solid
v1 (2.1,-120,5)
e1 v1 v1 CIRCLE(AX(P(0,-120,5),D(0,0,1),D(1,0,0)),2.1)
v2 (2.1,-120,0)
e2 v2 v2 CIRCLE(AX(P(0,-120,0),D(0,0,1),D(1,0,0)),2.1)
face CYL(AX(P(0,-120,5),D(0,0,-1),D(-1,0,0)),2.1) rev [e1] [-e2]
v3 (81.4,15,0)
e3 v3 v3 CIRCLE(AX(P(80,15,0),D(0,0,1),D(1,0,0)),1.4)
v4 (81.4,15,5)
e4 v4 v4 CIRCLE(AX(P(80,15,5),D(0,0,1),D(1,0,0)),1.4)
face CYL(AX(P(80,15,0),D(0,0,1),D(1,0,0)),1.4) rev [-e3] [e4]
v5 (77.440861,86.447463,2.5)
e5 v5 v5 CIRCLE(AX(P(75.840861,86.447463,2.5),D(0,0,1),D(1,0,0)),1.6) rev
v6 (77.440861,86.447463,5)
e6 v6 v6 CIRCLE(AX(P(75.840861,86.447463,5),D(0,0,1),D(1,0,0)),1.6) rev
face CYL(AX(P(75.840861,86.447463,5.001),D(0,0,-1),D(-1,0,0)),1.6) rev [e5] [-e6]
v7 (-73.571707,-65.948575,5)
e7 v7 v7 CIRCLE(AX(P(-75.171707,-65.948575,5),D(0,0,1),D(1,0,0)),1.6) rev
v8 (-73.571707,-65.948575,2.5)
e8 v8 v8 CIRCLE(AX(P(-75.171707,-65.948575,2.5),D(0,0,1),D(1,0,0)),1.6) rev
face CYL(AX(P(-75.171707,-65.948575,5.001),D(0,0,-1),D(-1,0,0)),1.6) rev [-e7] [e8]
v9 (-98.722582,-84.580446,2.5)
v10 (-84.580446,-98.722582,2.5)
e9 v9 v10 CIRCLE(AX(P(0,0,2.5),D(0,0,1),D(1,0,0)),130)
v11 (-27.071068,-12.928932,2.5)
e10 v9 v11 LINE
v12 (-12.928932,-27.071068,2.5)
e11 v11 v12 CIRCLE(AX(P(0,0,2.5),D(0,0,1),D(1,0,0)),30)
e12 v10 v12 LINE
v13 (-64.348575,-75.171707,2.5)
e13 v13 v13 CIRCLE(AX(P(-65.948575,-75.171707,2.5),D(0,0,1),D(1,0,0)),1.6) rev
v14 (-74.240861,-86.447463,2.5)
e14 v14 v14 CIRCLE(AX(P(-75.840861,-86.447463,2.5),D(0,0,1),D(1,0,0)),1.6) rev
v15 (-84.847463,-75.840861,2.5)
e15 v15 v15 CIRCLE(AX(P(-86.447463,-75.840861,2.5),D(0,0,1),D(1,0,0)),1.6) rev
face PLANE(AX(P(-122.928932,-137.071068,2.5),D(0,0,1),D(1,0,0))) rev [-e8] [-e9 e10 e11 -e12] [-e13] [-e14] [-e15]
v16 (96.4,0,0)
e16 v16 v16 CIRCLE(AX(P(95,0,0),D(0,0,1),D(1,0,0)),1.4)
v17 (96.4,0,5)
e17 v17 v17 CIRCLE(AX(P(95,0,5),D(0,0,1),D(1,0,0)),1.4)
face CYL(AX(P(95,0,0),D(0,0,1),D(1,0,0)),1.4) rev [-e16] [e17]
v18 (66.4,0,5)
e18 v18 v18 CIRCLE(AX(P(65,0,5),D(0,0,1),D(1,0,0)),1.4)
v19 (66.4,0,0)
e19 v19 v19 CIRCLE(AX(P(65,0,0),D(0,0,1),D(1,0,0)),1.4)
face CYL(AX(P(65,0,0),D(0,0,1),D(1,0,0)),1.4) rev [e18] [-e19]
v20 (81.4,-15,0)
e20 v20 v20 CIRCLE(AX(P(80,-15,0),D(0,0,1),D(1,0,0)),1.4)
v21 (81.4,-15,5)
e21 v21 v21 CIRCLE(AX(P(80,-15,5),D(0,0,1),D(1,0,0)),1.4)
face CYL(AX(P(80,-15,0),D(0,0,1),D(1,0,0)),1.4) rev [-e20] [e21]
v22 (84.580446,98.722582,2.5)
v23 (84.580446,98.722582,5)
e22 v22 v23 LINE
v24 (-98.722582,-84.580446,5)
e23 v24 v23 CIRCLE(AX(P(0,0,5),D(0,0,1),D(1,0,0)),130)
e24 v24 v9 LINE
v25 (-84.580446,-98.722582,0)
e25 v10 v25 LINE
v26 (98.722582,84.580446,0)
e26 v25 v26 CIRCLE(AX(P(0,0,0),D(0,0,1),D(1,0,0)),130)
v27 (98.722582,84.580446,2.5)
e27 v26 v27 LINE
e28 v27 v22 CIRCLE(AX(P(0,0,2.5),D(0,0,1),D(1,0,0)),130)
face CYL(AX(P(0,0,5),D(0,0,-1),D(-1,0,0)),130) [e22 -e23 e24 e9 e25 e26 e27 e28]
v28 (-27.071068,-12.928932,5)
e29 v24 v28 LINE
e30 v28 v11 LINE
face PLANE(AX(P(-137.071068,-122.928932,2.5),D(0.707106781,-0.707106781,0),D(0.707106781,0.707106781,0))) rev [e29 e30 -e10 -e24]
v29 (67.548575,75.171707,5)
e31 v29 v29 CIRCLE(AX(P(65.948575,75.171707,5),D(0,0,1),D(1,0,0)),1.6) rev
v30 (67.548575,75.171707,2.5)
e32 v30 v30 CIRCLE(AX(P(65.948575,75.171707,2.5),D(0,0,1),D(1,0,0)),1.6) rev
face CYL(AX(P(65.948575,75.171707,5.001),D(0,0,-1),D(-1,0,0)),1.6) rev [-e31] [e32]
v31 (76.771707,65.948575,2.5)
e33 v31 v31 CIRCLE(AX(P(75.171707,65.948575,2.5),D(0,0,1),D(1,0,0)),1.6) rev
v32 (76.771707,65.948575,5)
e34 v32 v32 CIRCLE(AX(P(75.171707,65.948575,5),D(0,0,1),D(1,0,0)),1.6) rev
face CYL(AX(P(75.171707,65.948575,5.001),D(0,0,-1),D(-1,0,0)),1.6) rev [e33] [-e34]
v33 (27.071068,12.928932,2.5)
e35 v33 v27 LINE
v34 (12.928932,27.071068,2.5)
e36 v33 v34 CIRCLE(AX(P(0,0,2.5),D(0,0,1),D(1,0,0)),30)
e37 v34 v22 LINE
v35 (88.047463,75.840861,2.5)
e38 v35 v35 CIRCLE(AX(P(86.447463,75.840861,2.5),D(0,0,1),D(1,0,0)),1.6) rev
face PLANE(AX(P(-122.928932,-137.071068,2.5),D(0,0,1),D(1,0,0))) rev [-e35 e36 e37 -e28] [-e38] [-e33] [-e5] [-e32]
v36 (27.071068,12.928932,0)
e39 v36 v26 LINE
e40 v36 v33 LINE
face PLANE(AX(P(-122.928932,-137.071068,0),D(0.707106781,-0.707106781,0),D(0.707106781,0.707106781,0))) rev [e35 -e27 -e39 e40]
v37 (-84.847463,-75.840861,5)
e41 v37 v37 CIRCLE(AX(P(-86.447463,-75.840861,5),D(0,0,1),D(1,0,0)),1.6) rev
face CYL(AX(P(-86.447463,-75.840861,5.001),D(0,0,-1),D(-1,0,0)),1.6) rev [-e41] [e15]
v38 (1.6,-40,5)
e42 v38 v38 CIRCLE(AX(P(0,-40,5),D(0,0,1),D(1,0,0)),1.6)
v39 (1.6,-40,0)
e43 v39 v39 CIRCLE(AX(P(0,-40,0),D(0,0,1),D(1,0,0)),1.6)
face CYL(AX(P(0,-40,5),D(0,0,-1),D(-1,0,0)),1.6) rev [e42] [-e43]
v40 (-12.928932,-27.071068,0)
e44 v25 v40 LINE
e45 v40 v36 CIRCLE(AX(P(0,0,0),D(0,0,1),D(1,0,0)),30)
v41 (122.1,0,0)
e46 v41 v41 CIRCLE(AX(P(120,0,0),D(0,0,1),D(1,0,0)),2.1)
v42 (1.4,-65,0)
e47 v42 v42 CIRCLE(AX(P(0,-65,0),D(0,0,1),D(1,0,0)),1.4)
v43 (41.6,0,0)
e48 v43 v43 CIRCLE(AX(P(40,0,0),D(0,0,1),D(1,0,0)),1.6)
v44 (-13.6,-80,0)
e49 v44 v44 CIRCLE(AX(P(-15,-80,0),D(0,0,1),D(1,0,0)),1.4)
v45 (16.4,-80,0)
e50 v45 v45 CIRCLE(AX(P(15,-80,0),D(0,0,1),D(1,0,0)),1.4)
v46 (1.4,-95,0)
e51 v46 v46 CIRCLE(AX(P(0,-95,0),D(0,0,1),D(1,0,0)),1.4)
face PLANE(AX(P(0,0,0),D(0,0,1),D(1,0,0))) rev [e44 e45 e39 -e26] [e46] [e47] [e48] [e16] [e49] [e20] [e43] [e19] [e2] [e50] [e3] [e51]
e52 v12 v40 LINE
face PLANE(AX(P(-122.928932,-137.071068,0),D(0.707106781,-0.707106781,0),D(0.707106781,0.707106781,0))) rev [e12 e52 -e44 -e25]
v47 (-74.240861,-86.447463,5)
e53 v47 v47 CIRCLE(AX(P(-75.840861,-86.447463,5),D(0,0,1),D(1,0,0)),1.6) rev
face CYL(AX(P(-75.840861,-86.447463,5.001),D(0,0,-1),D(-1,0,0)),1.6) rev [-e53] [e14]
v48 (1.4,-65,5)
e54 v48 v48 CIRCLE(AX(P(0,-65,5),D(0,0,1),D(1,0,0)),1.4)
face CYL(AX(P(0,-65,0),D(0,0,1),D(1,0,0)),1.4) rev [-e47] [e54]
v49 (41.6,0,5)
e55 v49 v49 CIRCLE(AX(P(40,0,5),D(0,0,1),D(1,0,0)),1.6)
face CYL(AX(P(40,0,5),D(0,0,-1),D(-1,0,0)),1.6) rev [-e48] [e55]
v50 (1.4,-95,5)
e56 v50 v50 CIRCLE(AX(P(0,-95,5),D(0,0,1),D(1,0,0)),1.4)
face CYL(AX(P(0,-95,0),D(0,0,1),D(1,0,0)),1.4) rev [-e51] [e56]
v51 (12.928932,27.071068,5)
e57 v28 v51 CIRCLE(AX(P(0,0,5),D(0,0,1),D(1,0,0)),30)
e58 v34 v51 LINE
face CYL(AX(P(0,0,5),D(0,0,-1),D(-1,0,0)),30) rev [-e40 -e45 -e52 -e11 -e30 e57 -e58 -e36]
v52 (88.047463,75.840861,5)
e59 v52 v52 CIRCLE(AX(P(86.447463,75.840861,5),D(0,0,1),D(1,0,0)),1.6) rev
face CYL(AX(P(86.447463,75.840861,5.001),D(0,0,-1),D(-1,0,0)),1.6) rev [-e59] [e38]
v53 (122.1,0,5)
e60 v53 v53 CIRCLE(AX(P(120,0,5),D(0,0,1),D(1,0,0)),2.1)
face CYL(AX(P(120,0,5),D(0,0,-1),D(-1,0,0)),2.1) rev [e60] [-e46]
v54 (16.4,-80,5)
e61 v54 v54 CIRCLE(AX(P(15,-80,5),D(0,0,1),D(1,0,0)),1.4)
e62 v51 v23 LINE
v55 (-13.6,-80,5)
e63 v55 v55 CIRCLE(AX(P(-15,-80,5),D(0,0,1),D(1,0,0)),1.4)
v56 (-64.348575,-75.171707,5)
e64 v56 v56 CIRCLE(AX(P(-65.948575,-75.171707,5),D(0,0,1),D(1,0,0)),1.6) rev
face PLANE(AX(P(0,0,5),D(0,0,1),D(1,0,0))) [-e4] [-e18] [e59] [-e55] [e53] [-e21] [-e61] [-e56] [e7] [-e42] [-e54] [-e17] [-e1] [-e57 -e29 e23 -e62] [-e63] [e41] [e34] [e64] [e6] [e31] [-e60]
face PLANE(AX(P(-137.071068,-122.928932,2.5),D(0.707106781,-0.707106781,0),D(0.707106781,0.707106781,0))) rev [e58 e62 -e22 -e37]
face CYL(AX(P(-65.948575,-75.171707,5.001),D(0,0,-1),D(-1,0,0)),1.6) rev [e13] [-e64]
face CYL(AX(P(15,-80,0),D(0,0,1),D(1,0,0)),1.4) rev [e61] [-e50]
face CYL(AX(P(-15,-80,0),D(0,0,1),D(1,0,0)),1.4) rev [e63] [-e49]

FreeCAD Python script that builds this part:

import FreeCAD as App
import Part
import Sketcher


def add_polygon(sketch, points):
    """Adds a closed chain of lines whose ends are joined by coincident constraints."""
    first, n = sketch.GeometryCount, len(points)
    for a, b in zip(points, points[1:] + points[:1]):
        sketch.addGeometry(Part.LineSegment(App.Vector(*a, 0), App.Vector(*b, 0)), False)
    for i in range(n):
        sketch.addConstraint(Sketcher.Constraint("Coincident", first + i, 2, first + (i + 1) % n, 1))

doc = App.newDocument("Part")
body = doc.addObject("PartDesign::Body", "Body")

# Sketch on XY plane
sketch1 = doc.addObject("Sketcher::SketchObject", "Sketch")
body.addObject(sketch1)
sketch1.AttachmentSupport = (doc.XY_Plane, [""])
sketch1.MapMode = "FlatFace"
sketch1.addGeometry([
    Part.Circle(App.Vector(0, 0, 0), App.Vector(0, 0, 1), 130),  # 0
    Part.Circle(App.Vector(0, -120, 0), App.Vector(0, 0, 1), 2.1),  # 1
    Part.Circle(App.Vector(0, -40, 0), App.Vector(0, 0, 1), 1.6),  # 2
    Part.Circle(App.Vector(-120, 0, 0), App.Vector(0, 0, 1), 2.1),  # 3
    Part.Circle(App.Vector(-40, 0, 0), App.Vector(0, 0, 1), 1.6),  # 4
    Part.Circle(App.Vector(0, 0, 0), App.Vector(0, 0, 1), 30),  # 5
    Part.Circle(App.Vector(40, 0, 0), App.Vector(0, 0, 1), 1.6),  # 6
    Part.Circle(App.Vector(0, 40, 0), App.Vector(0, 0, 1), 1.6),  # 7
    Part.Circle(App.Vector(120, 0, 0), App.Vector(0, 0, 1), 2.1),  # 8
    Part.Circle(App.Vector(0, 120, 0), App.Vector(0, 0, 1), 2.1),  # 9
], False)
sketch1.addConstraint([
    Sketcher.Constraint("Coincident", 0, 3, -1, 1),
    Sketcher.Constraint("Coincident", 5, 3, -1, 1),
    Sketcher.Constraint("Equal", 1, 3),
    Sketcher.Constraint("Equal", 2, 4),
    Sketcher.Constraint("Equal", 4, 6),
    Sketcher.Constraint("Equal", 6, 7),
    Sketcher.Constraint("Equal", 3, 8),
    Sketcher.Constraint("Equal", 8, 9),
    Sketcher.Constraint("Symmetric", 4, 3, 6, 3, -1, 1),
    Sketcher.Constraint("Symmetric", 2, 3, 7, 3, -1, 1),
    Sketcher.Constraint("Symmetric", 3, 3, 8, 3, -1, 1),
    Sketcher.Constraint("Symmetric", 1, 3, 9, 3, -1, 1),
    Sketcher.Constraint("PointOnObject", 1, 3, -2),
    Sketcher.Constraint("PointOnObject", 2, 3, -2),
    Sketcher.Constraint("PointOnObject", 3, 3, -1),
    Sketcher.Constraint("PointOnObject", 4, 3, -1),
    Sketcher.Constraint("Diameter", 0, 260.0),
    Sketcher.Constraint("Diameter", 5, 60.0),
    Sketcher.Constraint("Diameter", 1, 4.2),
    Sketcher.Constraint("Diameter", 2, 3.2),
    Sketcher.Constraint("DistanceY", 1, 3, -1, 1, 120.0),
    Sketcher.Constraint("DistanceY", 2, 3, -1, 1, 40.0),
    Sketcher.Constraint("DistanceX", 3, 3, -1, 1, 120.0),
    Sketcher.Constraint("DistanceX", 4, 3, -1, 1, 40.0),
])
pad1 = doc.addObject("PartDesign::Pad", "Pad")
body.addObject(pad1)
pad1.Profile = sketch1
pad1.Length = 5

# Sketch on XY plane
sketch2 = doc.addObject("Sketcher::SketchObject", "Sketch001")
body.addObject(sketch2)
sketch2.AttachmentSupport = (doc.XY_Plane, [""])
sketch2.MapMode = "FlatFace"
sketch2.AttachmentOffset = App.Placement(App.Vector(0, 0, 5), App.Rotation())
sketch2.addGeometry([
    Part.Circle(App.Vector(0, 95, 0), App.Vector(0, 0, 1), 1.4),  # 0
    Part.Circle(App.Vector(15, 80, 0), App.Vector(0, 0, 1), 1.4),  # 1
    Part.Circle(App.Vector(0, 65, 0), App.Vector(0, 0, 1), 1.4),  # 2
    Part.Circle(App.Vector(-15, 80, 0), App.Vector(0, 0, 1), 1.4),  # 3
    Part.Circle(App.Vector(95, 0, 0), App.Vector(0, 0, 1), 1.4),  # 4
    Part.Circle(App.Vector(80, -15, 0), App.Vector(0, 0, 1), 1.4),  # 5
    Part.Circle(App.Vector(65, 0, 0), App.Vector(0, 0, 1), 1.4),  # 6
    Part.Circle(App.Vector(80, 15, 0), App.Vector(0, 0, 1), 1.4),  # 7
    Part.Circle(App.Vector(0, -95, 0), App.Vector(0, 0, 1), 1.4),  # 8
    Part.Circle(App.Vector(-15, -80, 0), App.Vector(0, 0, 1), 1.4),  # 9
    Part.Circle(App.Vector(0, -65, 0), App.Vector(0, 0, 1), 1.4),  # 10
    Part.Circle(App.Vector(15, -80, 0), App.Vector(0, 0, 1), 1.4),  # 11
    Part.Circle(App.Vector(-95, 0, 0), App.Vector(0, 0, 1), 1.4),  # 12
    Part.Circle(App.Vector(-80, 15, 0), App.Vector(0, 0, 1), 1.4),  # 13
    Part.Circle(App.Vector(-65, 0, 0), App.Vector(0, 0, 1), 1.4),  # 14
    Part.Circle(App.Vector(-80, -15, 0), App.Vector(0, 0, 1), 1.4),  # 15
], False)
sketch2.addConstraint([
    Sketcher.Constraint("Equal", 0, 1),
    Sketcher.Constraint("Equal", 1, 2),
    Sketcher.Constraint("Equal", 2, 3),
    Sketcher.Constraint("Equal", 3, 4),
    Sketcher.Constraint("Equal", 4, 5),
    Sketcher.Constraint("Equal", 5, 6),
    Sketcher.Constraint("Equal", 6, 7),
    Sketcher.Constraint("Equal", 7, 8),
    Sketcher.Constraint("Equal", 8, 9),
    Sketcher.Constraint("Equal", 9, 10),
    Sketcher.Constraint("Equal", 10, 11),
    Sketcher.Constraint("Equal", 11, 12),
    Sketcher.Constraint("Equal", 12, 13),
    Sketcher.Constraint("Equal", 13, 14),
    Sketcher.Constraint("Equal", 14, 15),
    Sketcher.Constraint("Symmetric", 0, 3, 8, 3, -1, 1),
    Sketcher.Constraint("Symmetric", 1, 3, 9, 3, -1, 1),
    Sketcher.Constraint("Symmetric", 2, 3, 10, 3, -1, 1),
    Sketcher.Constraint("Symmetric", 3, 3, 11, 3, -1, 1),
    Sketcher.Constraint("Symmetric", 4, 3, 12, 3, -1, 1),
    Sketcher.Constraint("Symmetric", 5, 3, 13, 3, -1, 1),
    Sketcher.Constraint("Symmetric", 6, 3, 14, 3, -1, 1),
    Sketcher.Constraint("Symmetric", 7, 3, 15, 3, -1, 1),
    Sketcher.Constraint("Symmetric", 1, 3, 3, 3, -2),
    Sketcher.Constraint("Symmetric", 7, 3, 13, 3, -2),
    Sketcher.Constraint("PointOnObject", 0, 3, -2),
    Sketcher.Constraint("PointOnObject", 2, 3, -2),
    Sketcher.Constraint("PointOnObject", 4, 3, -1),
    Sketcher.Constraint("PointOnObject", 6, 3, -1),
    Sketcher.Constraint("Diameter", 0, 2.8),
    Sketcher.Constraint("DistanceY", -1, 1, 0, 3, 95.0),
    Sketcher.Constraint("DistanceX", -1, 1, 1, 3, 15.0),
    Sketcher.Constraint("DistanceY", -1, 1, 1, 3, 80.0),
    Sketcher.Constraint("DistanceY", -1, 1, 2, 3, 65.0),
    Sketcher.Constraint("DistanceX", -1, 1, 4, 3, 95.0),
    Sketcher.Constraint("DistanceX", -1, 1, 5, 3, 80.0),
    Sketcher.Constraint("DistanceY", 5, 3, -1, 1, 15.0),
    Sketcher.Constraint("DistanceX", -1, 1, 6, 3, 65.0),
])
pocket1 = doc.addObject("PartDesign::Pocket", "Pocket")
body.addObject(pocket1)
pocket1.Profile = sketch2
pocket1.Type = "ThroughAll"
pocket1.Midplane = True

# Sketch on XY plane
sketch3 = doc.addObject("Sketcher::SketchObject", "Sketch002")
body.addObject(sketch3)
sketch3.AttachmentSupport = (doc.XY_Plane, [""])
sketch3.MapMode = "FlatFace"
sketch3.addGeometry(Part.Circle(App.Vector(75.8, 86.4, 0), App.Vector(0, 0, 1), 1.6), False)
sketch3.addConstraint([
    Sketcher.Constraint("Diameter", 0, 3.2),
    Sketcher.Constraint("DistanceX", -1, 1, 0, 3, 75.840861),
    Sketcher.Constraint("DistanceY", -1, 1, 0, 3, 86.447463),
])
pocket2 = doc.addObject("PartDesign::Pocket", "Pocket001")
body.addObject(pocket2)
pocket2.Profile = sketch3
pocket2.Type = "UpToFirst"
pocket2.Reversed = True

# Sketch on XY plane
sketch4 = doc.addObject("Sketcher::SketchObject", "Sketch003")
body.addObject(sketch4)
sketch4.AttachmentSupport = (doc.XY_Plane, [""])
sketch4.MapMode = "FlatFace"
sketch4.addGeometry(Part.Circle(App.Vector(86.4, 75.8, 0), App.Vector(0, 0, 1), 1.6), False)
sketch4.addConstraint([
    Sketcher.Constraint("Diameter", 0, 3.2),
    Sketcher.Constraint("DistanceY", -1, 1, 0, 3, 75.840861),
    Sketcher.Constraint("DistanceX", -1, 1, 0, 3, 86.447463),
])
pocket3 = doc.addObject("PartDesign::Pocket", "Pocket002")
body.addObject(pocket3)
pocket3.Profile = sketch4
pocket3.Type = "UpToFirst"
pocket3.Reversed = True

# Sketch on XY plane
sketch5 = doc.addObject("Sketcher::SketchObject", "Sketch004")
body.addObject(sketch5)
sketch5.AttachmentSupport = (doc.XY_Plane, [""])
sketch5.MapMode = "FlatFace"
sketch5.addGeometry(Part.Circle(App.Vector(65.9, 75.2, 0), App.Vector(0, 0, 1), 1.6), False)
sketch5.addConstraint([
    Sketcher.Constraint("Diameter", 0, 3.2),
    Sketcher.Constraint("DistanceX", -1, 1, 0, 3, 65.948575),
    Sketcher.Constraint("DistanceY", -1, 1, 0, 3, 75.171707),
])
pocket4 = doc.addObject("PartDesign::Pocket", "Pocket003")
body.addObject(pocket4)
pocket4.Profile = sketch5
pocket4.Type = "UpToFirst"
pocket4.Reversed = True

# Sketch on XY plane
sketch6 = doc.addObject("Sketcher::SketchObject", "Sketch005")
body.addObject(sketch6)
sketch6.AttachmentSupport = (doc.XY_Plane, [""])
sketch6.MapMode = "FlatFace"
sketch6.addGeometry(Part.Circle(App.Vector(75.2, 65.9, 0), App.Vector(0, 0, 1), 1.6), False)
sketch6.addConstraint([
    Sketcher.Constraint("Diameter", 0, 3.2),
    Sketcher.Constraint("DistanceX", -1, 1, 0, 3, 75.171707),
    Sketcher.Constraint("DistanceY", -1, 1, 0, 3, 65.948575),
])
pocket5 = doc.addObject("PartDesign::Pocket", "Pocket004")
body.addObject(pocket5)
pocket5.Profile = sketch6
pocket5.Type = "UpToFirst"
pocket5.Reversed = True

# Sketch on XY plane
sketch7 = doc.addObject("Sketcher::SketchObject", "Sketch006")
body.addObject(sketch7)
sketch7.AttachmentSupport = (doc.XY_Plane, [""])
sketch7.MapMode = "FlatFace"
sketch7.addGeometry(Part.Circle(App.Vector(-65.9, -75.2, 0), App.Vector(0, 0, 1), 1.6), False)
sketch7.addConstraint([
    Sketcher.Constraint("Diameter", 0, 3.2),
    Sketcher.Constraint("DistanceX", 0, 3, -1, 1, 65.948575),
    Sketcher.Constraint("DistanceY", 0, 3, -1, 1, 75.171707),
])
pocket6 = doc.addObject("PartDesign::Pocket", "Pocket005")
body.addObject(pocket6)
pocket6.Profile = sketch7
pocket6.Type = "UpToFirst"
pocket6.Reversed = True

# Sketch on XY plane
sketch8 = doc.addObject("Sketcher::SketchObject", "Sketch007")
body.addObject(sketch8)
sketch8.AttachmentSupport = (doc.XY_Plane, [""])
sketch8.MapMode = "FlatFace"
sketch8.addGeometry(Part.Circle(App.Vector(-75.2, -65.9, 0), App.Vector(0, 0, 1), 1.6), False)
sketch8.addConstraint([
    Sketcher.Constraint("Diameter", 0, 3.2),
    Sketcher.Constraint("DistanceX", 0, 3, -1, 1, 75.171707),
    Sketcher.Constraint("DistanceY", 0, 3, -1, 1, 65.948575),
])
pocket7 = doc.addObject("PartDesign::Pocket", "Pocket006")
body.addObject(pocket7)
pocket7.Profile = sketch8
pocket7.Type = "UpToFirst"
pocket7.Reversed = True

# Sketch on XY plane
sketch9 = doc.addObject("Sketcher::SketchObject", "Sketch008")
body.addObject(sketch9)
sketch9.AttachmentSupport = (doc.XY_Plane, [""])
sketch9.MapMode = "FlatFace"
sketch9.addGeometry(Part.Circle(App.Vector(-75.8, -86.4, 0), App.Vector(0, 0, 1), 1.6), False)
sketch9.addConstraint([
    Sketcher.Constraint("Diameter", 0, 3.2),
    Sketcher.Constraint("DistanceX", 0, 3, -1, 1, 75.840861),
    Sketcher.Constraint("DistanceY", 0, 3, -1, 1, 86.447463),
])
pocket8 = doc.addObject("PartDesign::Pocket", "Pocket007")
body.addObject(pocket8)
pocket8.Profile = sketch9
pocket8.Type = "UpToFirst"
pocket8.Reversed = True

# Sketch on XY plane
sketch10 = doc.addObject("Sketcher::SketchObject", "Sketch009")
body.addObject(sketch10)
sketch10.AttachmentSupport = (doc.XY_Plane, [""])
sketch10.MapMode = "FlatFace"
sketch10.addGeometry(Part.Circle(App.Vector(-86.4, -75.8, 0), App.Vector(0, 0, 1), 1.6), False)
sketch10.addConstraint([
    Sketcher.Constraint("Diameter", 0, 3.2),
    Sketcher.Constraint("DistanceY", 0, 3, -1, 1, 75.840861),
    Sketcher.Constraint("DistanceX", 0, 3, -1, 1, 86.447463),
])
pocket9 = doc.addObject("PartDesign::Pocket", "Pocket008")
body.addObject(pocket9)
pocket9.Profile = sketch10
pocket9.Type = "UpToFirst"
pocket9.Reversed = True

# Sketch on an angled plane
sketch11 = doc.addObject("Sketcher::SketchObject", "Sketch010")
body.addObject(sketch11)
sketch11.Placement = App.Placement(App.Vector(91.923882, 91.923882, 0), App.Rotation(App.Vector(0, 0, -1), App.Vector(-0.707106781, 0.707106781, 0), App.Vector(0.707106781, 0.707106781, 0), "ZXY"))
add_polygon(sketch11, [(-2.5, -10), (0, -10), (0, 130), (-5, 130), (-5, 10), (-2.5, 10)])  # lines 0-5
sketch11.addConstraint([
    Sketcher.Constraint("Horizontal", 0),
    Sketcher.Constraint("Vertical", 1),
    Sketcher.Constraint("Horizontal", 2),
    Sketcher.Constraint("Vertical", 3),
    Sketcher.Constraint("Horizontal", 4),
    Sketcher.Constraint("Vertical", 5),
    Sketcher.Constraint("PointOnObject", 0, 2, -2),
    Sketcher.Constraint("Equal", 0, 4),
    Sketcher.Constraint("DistanceX", 2, 2, 2, 1, 5.0),
    Sketcher.Constraint("DistanceY", 1, 1, 1, 2, 140.0),
    Sketcher.Constraint("DistanceY", 3, 2, 3, 1, 120.0),
    Sketcher.Constraint("DistanceY", 0, 2, -1, 1, 10.0),
])
pocket10 = doc.addObject("PartDesign::Pocket", "Pocket009")
body.addObject(pocket10)
pocket10.Profile = sketch11
pocket10.Type = "ThroughAll"

doc.recompute()
